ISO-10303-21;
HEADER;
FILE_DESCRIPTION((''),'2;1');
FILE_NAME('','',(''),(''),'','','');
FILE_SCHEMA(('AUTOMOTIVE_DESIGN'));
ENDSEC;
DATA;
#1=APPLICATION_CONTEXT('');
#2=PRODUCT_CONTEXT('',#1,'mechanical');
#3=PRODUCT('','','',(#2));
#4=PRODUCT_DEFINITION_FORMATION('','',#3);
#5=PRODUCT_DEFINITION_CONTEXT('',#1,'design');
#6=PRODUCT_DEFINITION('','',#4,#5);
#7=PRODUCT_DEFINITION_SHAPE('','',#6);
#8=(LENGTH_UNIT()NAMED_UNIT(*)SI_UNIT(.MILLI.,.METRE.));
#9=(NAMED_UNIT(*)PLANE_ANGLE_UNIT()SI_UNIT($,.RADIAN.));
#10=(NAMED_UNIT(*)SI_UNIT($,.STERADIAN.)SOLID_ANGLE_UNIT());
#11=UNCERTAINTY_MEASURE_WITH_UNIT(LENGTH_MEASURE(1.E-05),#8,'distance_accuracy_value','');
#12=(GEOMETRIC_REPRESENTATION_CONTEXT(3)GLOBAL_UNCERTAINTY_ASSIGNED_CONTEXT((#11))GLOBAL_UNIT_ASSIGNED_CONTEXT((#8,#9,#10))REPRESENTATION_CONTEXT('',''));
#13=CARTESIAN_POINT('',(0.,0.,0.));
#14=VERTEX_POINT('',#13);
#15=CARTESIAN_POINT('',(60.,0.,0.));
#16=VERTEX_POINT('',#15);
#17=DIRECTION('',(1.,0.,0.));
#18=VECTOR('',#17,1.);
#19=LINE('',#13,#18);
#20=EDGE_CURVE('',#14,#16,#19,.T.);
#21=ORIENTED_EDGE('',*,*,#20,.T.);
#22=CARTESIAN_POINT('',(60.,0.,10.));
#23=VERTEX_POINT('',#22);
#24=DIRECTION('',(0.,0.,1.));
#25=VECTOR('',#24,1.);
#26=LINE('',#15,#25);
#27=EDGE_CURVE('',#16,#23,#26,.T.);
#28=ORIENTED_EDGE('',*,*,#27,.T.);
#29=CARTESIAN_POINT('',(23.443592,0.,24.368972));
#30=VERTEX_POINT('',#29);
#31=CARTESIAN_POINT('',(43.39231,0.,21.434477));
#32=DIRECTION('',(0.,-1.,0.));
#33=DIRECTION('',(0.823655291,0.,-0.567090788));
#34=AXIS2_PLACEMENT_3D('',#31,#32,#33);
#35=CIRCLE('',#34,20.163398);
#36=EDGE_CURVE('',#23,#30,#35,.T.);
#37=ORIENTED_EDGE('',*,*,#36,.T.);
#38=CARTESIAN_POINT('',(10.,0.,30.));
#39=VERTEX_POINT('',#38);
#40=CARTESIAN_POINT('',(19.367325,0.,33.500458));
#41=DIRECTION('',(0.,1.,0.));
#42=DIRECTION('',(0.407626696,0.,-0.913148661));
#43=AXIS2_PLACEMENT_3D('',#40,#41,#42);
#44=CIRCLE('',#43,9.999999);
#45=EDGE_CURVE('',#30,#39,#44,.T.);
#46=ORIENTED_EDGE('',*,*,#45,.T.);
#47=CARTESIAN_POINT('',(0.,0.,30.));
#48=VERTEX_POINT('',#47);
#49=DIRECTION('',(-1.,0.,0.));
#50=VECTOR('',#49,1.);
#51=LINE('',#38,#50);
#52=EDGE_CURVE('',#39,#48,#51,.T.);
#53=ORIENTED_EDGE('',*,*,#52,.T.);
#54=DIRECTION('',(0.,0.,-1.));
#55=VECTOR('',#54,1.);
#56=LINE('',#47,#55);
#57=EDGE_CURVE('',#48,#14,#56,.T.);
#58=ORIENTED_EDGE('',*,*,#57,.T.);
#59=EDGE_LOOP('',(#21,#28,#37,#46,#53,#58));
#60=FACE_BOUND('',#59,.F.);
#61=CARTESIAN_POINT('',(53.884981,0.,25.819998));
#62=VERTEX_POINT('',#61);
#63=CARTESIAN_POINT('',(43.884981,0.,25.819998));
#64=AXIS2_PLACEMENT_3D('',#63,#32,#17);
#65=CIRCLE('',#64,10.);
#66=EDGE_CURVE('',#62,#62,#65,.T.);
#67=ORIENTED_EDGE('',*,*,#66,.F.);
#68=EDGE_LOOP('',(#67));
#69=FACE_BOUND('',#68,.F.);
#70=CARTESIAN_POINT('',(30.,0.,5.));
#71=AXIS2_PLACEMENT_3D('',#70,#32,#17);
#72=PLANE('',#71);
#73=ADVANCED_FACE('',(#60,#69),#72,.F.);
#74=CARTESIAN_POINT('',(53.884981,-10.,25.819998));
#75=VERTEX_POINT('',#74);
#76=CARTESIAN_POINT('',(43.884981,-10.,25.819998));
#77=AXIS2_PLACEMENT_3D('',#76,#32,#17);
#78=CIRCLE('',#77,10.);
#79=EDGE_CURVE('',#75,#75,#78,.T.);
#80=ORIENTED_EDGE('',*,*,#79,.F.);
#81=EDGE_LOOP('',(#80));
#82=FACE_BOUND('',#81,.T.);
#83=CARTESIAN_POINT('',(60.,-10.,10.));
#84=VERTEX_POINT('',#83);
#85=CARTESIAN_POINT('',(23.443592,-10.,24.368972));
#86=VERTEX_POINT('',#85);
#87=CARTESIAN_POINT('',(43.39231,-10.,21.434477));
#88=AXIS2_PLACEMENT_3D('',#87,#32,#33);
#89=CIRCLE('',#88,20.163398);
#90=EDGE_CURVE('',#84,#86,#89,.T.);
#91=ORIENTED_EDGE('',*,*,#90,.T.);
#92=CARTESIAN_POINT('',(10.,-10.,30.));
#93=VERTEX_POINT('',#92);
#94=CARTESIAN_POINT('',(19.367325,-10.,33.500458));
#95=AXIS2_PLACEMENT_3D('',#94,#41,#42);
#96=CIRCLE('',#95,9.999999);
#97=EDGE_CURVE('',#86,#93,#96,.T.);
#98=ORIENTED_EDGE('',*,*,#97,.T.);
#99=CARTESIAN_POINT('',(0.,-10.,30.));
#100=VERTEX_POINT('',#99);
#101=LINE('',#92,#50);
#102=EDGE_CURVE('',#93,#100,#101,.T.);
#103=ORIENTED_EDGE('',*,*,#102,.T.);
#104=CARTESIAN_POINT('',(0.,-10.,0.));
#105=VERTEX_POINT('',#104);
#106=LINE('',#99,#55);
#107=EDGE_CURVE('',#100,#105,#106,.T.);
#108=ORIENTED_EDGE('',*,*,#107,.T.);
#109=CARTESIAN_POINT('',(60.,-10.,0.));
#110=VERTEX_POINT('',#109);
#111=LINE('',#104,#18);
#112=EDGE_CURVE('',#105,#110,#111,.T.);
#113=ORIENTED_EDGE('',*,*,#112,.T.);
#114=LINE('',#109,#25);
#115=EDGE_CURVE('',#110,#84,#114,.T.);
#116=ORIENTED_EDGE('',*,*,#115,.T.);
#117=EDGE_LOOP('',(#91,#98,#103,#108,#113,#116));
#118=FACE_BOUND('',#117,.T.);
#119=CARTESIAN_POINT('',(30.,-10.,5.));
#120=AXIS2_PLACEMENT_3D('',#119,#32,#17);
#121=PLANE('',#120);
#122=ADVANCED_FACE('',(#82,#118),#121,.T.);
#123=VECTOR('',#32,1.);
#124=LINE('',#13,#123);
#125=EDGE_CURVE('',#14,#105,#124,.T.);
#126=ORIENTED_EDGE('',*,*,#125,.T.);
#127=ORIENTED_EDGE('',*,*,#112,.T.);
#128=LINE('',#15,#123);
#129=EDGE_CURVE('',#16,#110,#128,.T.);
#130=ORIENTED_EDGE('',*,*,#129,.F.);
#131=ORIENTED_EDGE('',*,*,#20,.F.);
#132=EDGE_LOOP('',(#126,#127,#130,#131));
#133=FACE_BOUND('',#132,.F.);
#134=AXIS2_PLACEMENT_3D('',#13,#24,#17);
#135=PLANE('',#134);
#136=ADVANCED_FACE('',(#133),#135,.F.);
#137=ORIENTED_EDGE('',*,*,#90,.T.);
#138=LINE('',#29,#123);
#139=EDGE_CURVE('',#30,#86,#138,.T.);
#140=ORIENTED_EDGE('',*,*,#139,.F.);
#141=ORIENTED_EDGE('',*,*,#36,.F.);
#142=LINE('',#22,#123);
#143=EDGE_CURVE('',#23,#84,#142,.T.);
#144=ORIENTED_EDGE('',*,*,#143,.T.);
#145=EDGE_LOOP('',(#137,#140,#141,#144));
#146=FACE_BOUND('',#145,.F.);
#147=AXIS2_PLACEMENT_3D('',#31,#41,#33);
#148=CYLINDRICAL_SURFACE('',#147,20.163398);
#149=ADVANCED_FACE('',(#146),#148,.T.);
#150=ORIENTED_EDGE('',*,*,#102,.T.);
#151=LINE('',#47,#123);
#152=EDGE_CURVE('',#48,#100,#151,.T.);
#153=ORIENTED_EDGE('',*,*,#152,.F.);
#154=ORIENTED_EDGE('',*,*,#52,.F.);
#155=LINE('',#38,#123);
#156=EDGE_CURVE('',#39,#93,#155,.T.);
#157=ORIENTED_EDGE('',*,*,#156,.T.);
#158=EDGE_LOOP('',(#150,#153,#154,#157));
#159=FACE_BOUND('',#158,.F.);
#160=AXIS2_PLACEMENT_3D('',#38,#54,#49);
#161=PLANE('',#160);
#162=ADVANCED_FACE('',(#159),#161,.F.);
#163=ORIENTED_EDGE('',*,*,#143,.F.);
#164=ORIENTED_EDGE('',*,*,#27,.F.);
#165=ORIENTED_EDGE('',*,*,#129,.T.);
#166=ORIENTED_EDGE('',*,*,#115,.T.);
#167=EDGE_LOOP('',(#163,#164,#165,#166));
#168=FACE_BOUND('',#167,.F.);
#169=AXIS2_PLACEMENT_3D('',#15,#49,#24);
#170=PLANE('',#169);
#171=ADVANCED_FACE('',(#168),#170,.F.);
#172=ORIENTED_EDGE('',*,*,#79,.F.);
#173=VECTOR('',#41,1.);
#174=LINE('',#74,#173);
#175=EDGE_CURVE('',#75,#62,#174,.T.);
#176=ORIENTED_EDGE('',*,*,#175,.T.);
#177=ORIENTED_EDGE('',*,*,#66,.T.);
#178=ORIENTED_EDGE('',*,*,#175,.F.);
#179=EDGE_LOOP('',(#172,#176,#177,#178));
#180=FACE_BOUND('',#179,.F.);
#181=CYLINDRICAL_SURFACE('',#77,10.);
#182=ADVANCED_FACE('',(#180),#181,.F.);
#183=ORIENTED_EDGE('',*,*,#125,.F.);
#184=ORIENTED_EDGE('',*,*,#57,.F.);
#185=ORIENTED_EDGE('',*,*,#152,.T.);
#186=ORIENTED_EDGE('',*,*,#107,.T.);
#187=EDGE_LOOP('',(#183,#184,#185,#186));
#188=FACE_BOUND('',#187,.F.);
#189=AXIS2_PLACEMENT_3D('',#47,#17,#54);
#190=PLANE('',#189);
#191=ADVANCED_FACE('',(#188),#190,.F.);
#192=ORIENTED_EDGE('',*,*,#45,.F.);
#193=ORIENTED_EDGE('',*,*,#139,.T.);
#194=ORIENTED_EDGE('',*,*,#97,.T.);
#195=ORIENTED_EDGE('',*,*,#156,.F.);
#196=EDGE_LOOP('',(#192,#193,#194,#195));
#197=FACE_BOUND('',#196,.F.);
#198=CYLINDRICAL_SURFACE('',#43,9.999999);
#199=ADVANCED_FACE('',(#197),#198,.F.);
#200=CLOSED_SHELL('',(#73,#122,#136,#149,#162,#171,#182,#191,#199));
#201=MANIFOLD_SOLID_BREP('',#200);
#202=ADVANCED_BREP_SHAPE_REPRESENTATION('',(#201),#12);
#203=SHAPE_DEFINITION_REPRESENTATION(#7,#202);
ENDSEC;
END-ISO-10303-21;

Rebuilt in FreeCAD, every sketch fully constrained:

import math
import FreeCAD as App
import Part
import Sketcher
from FreeCAD import Vector

doc = App.newDocument("Part")
body = doc.addObject("PartDesign::Body", "Body")

# Sketch on XZ plane
sketch1 = body.newObject("Sketcher::SketchObject", "Sketch")
sketch1.AttachmentSupport = (doc.getObject("XZ_Plane"), [""])
sketch1.MapMode = "FlatFace"
sketch1.addGeometry(Part.LineSegment(Vector(0, 0, 0), Vector(60, 0, 0)), False)
sketch1.addGeometry(Part.LineSegment(Vector(60, 0, 0), Vector(60, 10, 0)), False)
sketch1.addGeometry(Part.ArcOfCircle(Part.Circle(Vector(43, 21, 0), Vector(0, 0, 1), 20), math.radians(-35), math.radians(172)), False)
sketch1.addGeometry(Part.ArcOfCircle(Part.Circle(Vector(19, 34, 0), Vector(0, 0, 1), 10), math.radians(-160), math.radians(-66)), False)
sketch1.addGeometry(Part.LineSegment(Vector(10, 30, 0), Vector(0, 30, 0)), False)
sketch1.addGeometry(Part.LineSegment(Vector(0, 30, 0), Vector(0, 0, 0)), False)
sketch1.addConstraint(Sketcher.Constraint("Coincident", 0, 2, 1, 1))
sketch1.addConstraint(Sketcher.Constraint("Coincident", 1, 2, 2, 1))
sketch1.addConstraint(Sketcher.Constraint("Coincident", 2, 2, 3, 2))
sketch1.addConstraint(Sketcher.Constraint("Coincident", 3, 1, 4, 1))
sketch1.addConstraint(Sketcher.Constraint("Coincident", 4, 2, 5, 1))
sketch1.addConstraint(Sketcher.Constraint("Coincident", 5, 2, 0, 1))
sketch1.addConstraint(Sketcher.Constraint("Horizontal", 0))
sketch1.addConstraint(Sketcher.Constraint("Vertical", 1))
sketch1.addConstraint(Sketcher.Constraint("Horizontal", 4))
sketch1.addConstraint(Sketcher.Constraint("Vertical", 5))
sketch1.addConstraint(Sketcher.Constraint("Coincident", 5, 2, -1, 1))
sketch1.addConstraint(Sketcher.Constraint("Equal", 4, 1))
sketch1.addConstraint(Sketcher.Constraint("Radius", 3, 9.999999))
sketch1.addConstraint(Sketcher.Constraint("DistanceX", 0, 1, 0, 2, 60.0))
sketch1.addConstraint(Sketcher.Constraint("DistanceX", 4, 2, 4, 1, 10.0))
sketch1.addConstraint(Sketcher.Constraint("DistanceY", 5, 2, 5, 1, 30.0))
sketch1.addConstraint(Sketcher.Constraint("Radius", 2, 20.163398))
sketch1.addConstraint(Sketcher.Constraint("DistanceX", -1, 1, 2, 3, 43.39231))
sketch1.addConstraint(Sketcher.Constraint("DistanceY", -1, 1, 3, 3, 33.500458))
pad1 = body.newObject("PartDesign::Pad", "Pad")
pad1.Profile = sketch1
pad1.Length = 10

# Sketch on XZ plane
sketch2 = body.newObject("Sketcher::SketchObject", "Sketch001")
sketch2.AttachmentSupport = (doc.getObject("XZ_Plane"), [""])
sketch2.MapMode = "FlatFace"
sketch2.AttachmentOffset = App.Placement(Vector(0, 0, 10), App.Rotation())
sketch2.addGeometry(Part.Circle(Vector(44, 26, 0), Vector(0, 0, 1), 10), False)
sketch2.addConstraint(Sketcher.Constraint("Diameter", 0, 20.0))
sketch2.addConstraint(Sketcher.Constraint("DistanceX", -1, 1, 0, 3, 43.884981))
sketch2.addConstraint(Sketcher.Constraint("DistanceY", -1, 1, 0, 3, 25.819998))
pocket1 = body.newObject("PartDesign::Pocket", "Pocket")
pocket1.Profile = sketch2
pocket1.Length = 10

doc.recompute()
